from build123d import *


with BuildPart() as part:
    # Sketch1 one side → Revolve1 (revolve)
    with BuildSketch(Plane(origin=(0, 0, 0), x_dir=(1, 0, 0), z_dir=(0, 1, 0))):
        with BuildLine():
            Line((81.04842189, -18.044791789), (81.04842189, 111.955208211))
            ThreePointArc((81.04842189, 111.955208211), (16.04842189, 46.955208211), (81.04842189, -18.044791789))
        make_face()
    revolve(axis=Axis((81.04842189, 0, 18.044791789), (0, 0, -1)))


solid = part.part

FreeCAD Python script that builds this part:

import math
import FreeCAD as App
import Part
import Sketcher

V = App.Vector
Q = App.Units.Quantity

doc = App.newDocument("Part")
body = doc.addObject("PartDesign::Body", "Body")

# Sketch on XZ plane
sketch1 = doc.addObject("Sketcher::SketchObject", "Sketch")
body.addObject(sketch1)
sketch1.AttachmentSupport = (doc.XZ_Plane, [""])
sketch1.MapMode = "FlatFace"
sketch1.addGeometry([
    Part.LineSegment(V(81, 18, 0), V(81, -112, 0)),
    Part.ArcOfCircle(Part.Circle(V(81, -47, 0), V(0, 0, 1), 65), math.radians(90), math.radians(270)),
], False)
sketch1.addGeometry(Part.LineSegment(V(81, 18, 0), V(81, -112, 0)), True)  # axis
sketch1.addConstraint([
    Sketcher.Constraint("Coincident", 0, 1, 1, 1),
    Sketcher.Constraint("Coincident", 1, 2, 0, 2),
    Sketcher.Constraint("Vertical", 0),
    Sketcher.Constraint("Vertical", 2),
    Sketcher.Constraint("Coincident", 2, 1, 0, 1),
    Sketcher.Constraint("Vertical", 1, 3, 0, 1),
    Sketcher.Constraint("Equal", 0, 2),
    Sketcher.Constraint("Radius", 1, Q("65 mm")),
    Sketcher.Constraint("DistanceX", -1, 1, 1, 3, Q("81.048422 mm")),
    Sketcher.Constraint("DistanceY", 1, 3, -1, 1, Q("46.955208 mm")),
])
revolution = doc.addObject("PartDesign::Revolution", "Revolution")
body.addObject(revolution)
revolution.Profile = sketch1
revolution.ReferenceAxis = (sketch1, ["Axis0"])
revolution.Angle = 360

doc.recompute()
